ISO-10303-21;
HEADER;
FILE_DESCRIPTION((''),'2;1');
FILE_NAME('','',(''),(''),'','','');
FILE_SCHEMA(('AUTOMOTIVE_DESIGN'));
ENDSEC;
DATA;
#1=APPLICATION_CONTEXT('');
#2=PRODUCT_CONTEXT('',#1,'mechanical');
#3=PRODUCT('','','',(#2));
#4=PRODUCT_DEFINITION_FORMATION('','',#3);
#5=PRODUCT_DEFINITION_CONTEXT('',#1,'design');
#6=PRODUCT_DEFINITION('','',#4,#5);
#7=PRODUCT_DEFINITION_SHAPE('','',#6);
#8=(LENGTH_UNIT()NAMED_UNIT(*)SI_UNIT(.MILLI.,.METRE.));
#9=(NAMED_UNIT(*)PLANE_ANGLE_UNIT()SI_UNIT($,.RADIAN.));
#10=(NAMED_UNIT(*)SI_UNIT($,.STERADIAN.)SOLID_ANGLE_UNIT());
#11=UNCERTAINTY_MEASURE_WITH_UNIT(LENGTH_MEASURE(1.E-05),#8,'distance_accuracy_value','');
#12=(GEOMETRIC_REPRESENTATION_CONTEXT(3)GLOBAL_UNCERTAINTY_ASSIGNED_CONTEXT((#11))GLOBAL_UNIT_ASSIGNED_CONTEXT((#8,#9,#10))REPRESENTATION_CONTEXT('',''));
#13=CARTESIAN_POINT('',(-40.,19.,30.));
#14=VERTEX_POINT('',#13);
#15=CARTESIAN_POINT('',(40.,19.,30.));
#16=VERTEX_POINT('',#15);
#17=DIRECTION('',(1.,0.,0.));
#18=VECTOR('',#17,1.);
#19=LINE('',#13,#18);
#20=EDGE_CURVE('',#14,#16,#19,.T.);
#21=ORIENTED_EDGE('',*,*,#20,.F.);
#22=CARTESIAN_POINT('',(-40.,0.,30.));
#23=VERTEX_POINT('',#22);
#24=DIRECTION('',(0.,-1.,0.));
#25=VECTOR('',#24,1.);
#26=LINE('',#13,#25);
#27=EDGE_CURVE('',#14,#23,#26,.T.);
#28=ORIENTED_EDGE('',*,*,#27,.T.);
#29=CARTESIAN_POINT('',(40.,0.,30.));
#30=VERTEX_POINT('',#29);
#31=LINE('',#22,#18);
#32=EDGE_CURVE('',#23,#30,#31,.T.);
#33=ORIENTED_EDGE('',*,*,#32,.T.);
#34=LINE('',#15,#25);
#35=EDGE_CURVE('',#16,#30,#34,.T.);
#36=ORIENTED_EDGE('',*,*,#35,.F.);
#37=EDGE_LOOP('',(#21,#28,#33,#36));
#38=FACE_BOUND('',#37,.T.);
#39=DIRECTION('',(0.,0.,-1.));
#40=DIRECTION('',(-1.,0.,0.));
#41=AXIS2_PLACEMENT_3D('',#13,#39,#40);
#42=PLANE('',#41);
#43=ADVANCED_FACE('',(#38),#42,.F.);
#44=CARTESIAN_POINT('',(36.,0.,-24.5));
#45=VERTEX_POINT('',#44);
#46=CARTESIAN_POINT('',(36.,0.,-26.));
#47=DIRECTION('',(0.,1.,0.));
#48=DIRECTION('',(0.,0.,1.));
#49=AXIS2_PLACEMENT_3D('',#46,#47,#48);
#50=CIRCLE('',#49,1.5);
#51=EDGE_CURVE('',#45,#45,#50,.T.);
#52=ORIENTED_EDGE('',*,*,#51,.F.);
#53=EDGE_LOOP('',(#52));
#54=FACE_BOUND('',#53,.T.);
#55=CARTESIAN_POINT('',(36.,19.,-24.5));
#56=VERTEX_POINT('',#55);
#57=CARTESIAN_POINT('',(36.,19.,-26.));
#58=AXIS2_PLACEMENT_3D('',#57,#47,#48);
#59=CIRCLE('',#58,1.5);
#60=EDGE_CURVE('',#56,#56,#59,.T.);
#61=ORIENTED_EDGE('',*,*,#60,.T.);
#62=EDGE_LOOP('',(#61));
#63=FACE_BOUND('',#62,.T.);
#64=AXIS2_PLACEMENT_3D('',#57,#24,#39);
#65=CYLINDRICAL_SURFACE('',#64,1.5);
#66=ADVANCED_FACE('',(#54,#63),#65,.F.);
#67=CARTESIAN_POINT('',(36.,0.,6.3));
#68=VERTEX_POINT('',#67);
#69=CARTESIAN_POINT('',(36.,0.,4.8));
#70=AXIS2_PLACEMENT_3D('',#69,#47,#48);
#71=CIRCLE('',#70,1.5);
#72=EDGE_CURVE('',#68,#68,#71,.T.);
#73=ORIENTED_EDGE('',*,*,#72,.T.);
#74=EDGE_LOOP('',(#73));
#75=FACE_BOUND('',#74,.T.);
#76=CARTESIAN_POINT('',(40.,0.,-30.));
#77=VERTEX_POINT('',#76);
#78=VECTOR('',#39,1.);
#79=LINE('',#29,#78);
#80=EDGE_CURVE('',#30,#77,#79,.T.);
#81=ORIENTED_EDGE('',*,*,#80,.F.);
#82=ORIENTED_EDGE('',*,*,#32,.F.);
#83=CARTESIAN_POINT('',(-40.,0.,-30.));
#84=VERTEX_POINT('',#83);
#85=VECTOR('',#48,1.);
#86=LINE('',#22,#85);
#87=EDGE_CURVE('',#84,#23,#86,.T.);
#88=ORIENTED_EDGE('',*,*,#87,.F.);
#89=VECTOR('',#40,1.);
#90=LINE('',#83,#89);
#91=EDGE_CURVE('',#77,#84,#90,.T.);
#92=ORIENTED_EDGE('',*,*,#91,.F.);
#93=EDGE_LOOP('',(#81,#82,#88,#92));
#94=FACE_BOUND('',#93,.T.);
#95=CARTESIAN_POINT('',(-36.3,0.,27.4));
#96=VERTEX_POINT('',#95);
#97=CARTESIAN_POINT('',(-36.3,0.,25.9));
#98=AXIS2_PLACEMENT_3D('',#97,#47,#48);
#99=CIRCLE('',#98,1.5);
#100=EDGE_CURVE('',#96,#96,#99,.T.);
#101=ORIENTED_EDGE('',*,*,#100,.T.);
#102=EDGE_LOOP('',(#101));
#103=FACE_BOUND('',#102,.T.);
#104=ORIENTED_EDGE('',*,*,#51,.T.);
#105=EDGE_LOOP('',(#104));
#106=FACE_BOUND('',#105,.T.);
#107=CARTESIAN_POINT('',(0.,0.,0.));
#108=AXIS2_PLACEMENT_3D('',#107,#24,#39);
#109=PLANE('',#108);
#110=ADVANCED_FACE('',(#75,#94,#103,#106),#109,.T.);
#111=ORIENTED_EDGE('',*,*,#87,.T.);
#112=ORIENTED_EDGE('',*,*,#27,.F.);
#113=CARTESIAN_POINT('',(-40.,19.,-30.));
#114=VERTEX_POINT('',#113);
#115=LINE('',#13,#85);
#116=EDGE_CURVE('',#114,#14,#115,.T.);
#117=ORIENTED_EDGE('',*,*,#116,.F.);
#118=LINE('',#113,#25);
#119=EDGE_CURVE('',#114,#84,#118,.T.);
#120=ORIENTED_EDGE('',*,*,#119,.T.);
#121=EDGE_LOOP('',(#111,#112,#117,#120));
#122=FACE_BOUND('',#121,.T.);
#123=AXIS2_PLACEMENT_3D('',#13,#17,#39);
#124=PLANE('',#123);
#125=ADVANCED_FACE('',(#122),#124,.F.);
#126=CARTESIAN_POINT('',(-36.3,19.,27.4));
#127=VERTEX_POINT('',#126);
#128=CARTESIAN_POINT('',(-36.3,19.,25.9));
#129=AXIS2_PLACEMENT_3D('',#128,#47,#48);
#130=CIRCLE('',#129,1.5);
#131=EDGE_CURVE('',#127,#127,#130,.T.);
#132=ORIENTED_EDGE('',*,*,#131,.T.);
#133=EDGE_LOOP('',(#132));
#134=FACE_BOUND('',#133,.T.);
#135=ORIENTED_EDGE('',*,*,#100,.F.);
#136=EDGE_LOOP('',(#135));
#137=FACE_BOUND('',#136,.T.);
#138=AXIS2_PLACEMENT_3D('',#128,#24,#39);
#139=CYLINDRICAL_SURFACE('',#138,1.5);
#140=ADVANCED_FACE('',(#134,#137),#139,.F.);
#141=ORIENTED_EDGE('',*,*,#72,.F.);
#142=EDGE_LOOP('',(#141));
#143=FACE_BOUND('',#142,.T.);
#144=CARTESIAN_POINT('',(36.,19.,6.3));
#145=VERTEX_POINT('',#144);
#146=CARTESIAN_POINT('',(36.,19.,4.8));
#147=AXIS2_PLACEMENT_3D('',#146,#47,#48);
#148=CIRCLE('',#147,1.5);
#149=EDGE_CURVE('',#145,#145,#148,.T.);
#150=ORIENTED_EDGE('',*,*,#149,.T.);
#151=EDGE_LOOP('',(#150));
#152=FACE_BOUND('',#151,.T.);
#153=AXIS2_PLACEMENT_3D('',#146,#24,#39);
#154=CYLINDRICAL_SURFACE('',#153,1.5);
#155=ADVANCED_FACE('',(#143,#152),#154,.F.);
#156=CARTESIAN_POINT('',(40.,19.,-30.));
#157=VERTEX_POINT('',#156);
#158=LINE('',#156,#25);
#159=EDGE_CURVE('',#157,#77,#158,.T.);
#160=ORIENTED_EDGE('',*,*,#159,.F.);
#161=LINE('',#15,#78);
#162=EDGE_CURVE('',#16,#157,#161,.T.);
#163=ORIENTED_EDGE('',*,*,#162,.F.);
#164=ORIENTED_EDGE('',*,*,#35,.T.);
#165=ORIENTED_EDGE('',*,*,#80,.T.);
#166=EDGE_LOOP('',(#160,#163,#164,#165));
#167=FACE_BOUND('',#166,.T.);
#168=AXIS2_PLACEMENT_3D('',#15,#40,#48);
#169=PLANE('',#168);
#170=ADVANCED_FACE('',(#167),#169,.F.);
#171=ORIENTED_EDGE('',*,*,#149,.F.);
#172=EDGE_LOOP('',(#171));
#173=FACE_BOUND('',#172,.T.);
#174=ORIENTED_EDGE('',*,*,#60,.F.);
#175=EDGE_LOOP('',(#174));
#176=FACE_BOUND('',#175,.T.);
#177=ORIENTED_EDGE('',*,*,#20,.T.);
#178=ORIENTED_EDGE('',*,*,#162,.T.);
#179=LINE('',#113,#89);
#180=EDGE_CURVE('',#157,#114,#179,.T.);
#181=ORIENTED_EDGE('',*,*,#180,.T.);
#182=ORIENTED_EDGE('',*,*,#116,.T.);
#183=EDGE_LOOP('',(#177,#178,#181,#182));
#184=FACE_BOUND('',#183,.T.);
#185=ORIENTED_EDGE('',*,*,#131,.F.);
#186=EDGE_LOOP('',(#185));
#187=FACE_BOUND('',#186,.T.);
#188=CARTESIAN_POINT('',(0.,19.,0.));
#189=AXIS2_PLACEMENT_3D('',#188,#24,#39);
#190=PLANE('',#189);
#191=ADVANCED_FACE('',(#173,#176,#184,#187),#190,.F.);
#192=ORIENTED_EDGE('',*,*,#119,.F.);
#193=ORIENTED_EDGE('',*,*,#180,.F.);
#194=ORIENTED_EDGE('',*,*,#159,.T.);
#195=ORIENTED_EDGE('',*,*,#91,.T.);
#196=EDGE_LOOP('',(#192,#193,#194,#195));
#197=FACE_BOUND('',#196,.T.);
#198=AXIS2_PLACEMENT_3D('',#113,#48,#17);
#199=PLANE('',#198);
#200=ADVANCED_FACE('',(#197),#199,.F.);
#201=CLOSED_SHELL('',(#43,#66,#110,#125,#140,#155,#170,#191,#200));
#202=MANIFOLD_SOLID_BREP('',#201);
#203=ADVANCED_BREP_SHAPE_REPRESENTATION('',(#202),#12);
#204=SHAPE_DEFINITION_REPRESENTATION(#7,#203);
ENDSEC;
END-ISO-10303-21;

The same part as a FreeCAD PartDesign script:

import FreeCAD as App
import Part
import Sketcher

V = App.Vector
Q = App.Units.Quantity

doc = App.newDocument("Part")
body = doc.addObject("PartDesign::Body", "Body")

# Sketch on XZ plane
sketch1 = body.newObject("Sketcher::SketchObject", "Sketch")
sketch1.AttachmentSupport = (doc.getObject("XZ_Plane"), [""])
sketch1.MapMode = "FlatFace"
sketch1.addGeometry([
    Part.LineSegment(V(-40, -30, 0), V(-40, 30, 0)),  # 0
    Part.LineSegment(V(-40, 30, 0), V(40, 30, 0)),  # 1
    Part.LineSegment(V(40, 30, 0), V(40, -30, 0)),  # 2
    Part.LineSegment(V(40, -30, 0), V(-40, -30, 0)),  # 3
    Part.Circle(V(-36.3, 25.9, 0), V(0, 0, 1), 1.5),  # 4
    Part.Circle(V(36, 4.8, 0), V(0, 0, 1), 1.5),  # 5
    Part.Circle(V(36, -26, 0), V(0, 0, 1), 1.5),  # 6
], False)
sketch1.addConstraint([
    Sketcher.Constraint("Coincident", 0, 2, 1, 1),
    Sketcher.Constraint("Coincident", 1, 2, 2, 1),
    Sketcher.Constraint("Coincident", 2, 2, 3, 1),
    Sketcher.Constraint("Coincident", 3, 2, 0, 1),
    Sketcher.Constraint("Vertical", 0),
    Sketcher.Constraint("Horizontal", 1),
    Sketcher.Constraint("Vertical", 2),
    Sketcher.Constraint("Horizontal", 3),
    Sketcher.Constraint("Equal", 4, 5),
    Sketcher.Constraint("Equal", 5, 6),
    Sketcher.Constraint("Symmetric", 0, 2, 2, 2, -1, 1),
    Sketcher.Constraint("Vertical", 5, 3, 6, 3),
    Sketcher.Constraint("Diameter", 4, Q("3 mm")),
    Sketcher.Constraint("DistanceX", 1, 1, 1, 2, Q("80 mm")),
    Sketcher.Constraint("DistanceY", 0, 1, 0, 2, Q("60 mm")),
    Sketcher.Constraint("DistanceX", -1, 1, 5, 3, Q("36 mm")),
    Sketcher.Constraint("DistanceY", 6, 3, -1, 1, Q("26 mm")),
    Sketcher.Constraint("DistanceX", 4, 3, -1, 1, Q("36.3 mm")),
    Sketcher.Constraint("DistanceY", -1, 1, 4, 3, Q("25.9 mm")),
    Sketcher.Constraint("DistanceY", -1, 1, 5, 3, Q("4.8 mm")),
])
pad1 = body.newObject("PartDesign::Pad", "Pad")
pad1.Profile = sketch1
pad1.Length = 19
pad1.Reversed = True

doc.recompute()
